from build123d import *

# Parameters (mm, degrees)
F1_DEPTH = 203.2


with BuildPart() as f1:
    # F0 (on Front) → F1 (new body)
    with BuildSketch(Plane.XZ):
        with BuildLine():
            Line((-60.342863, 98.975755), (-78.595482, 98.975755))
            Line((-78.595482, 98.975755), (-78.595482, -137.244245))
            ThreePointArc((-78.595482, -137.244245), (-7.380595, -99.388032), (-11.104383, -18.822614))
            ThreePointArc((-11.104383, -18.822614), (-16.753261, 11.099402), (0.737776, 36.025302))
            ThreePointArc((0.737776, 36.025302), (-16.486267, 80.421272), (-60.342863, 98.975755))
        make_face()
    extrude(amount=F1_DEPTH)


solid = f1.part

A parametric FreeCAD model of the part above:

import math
import FreeCAD as App
import Part
import Sketcher

V = App.Vector
Q = App.Units.Quantity

doc = App.newDocument("Part")
body = doc.addObject("PartDesign::Body", "Body")

sketch1 = body.newObject("Sketcher::SketchObject", "Sketch")
sketch1.AttachmentSupport = (doc.getObject("XZ_Plane"), [""])
sketch1.MapMode = "FlatFace"
sketch1.addGeometry([
    Part.LineSegment(V(-60, 99, 0), V(-79, 99, 0)),
    Part.LineSegment(V(-79, 99, 0), V(-79, -137, 0)),
    Part.ArcOfCircle(Part.Circle(V(-73, -62, 0), V(0, 0, 1), 75), math.radians(-94), math.radians(35)),
    Part.ArcOfCircle(Part.Circle(V(22, 3, 0), V(0, 0, 1), 39), math.radians(122), math.radians(214)),
    Part.ArcOfCircle(Part.Circle(V(-60, 38, 0), V(0, 0, 1), 61), math.radians(-2), math.radians(90)),
], False)
sketch1.addConstraint([
    Sketcher.Constraint("Coincident", 0, 2, 1, 1),
    Sketcher.Constraint("Coincident", 1, 2, 2, 1),
    Sketcher.Constraint("Coincident", 2, 2, 3, 2),
    Sketcher.Constraint("Coincident", 3, 1, 4, 1),
    Sketcher.Constraint("Tangent", 4, 2, 0, 1),
    Sketcher.Constraint("Horizontal", 0),
    Sketcher.Constraint("Vertical", 1),
    Sketcher.Constraint("DistanceY", 1, 2, 1, 1, Q("9.3 in")),
    Sketcher.Constraint("Radius", 2, 75.412118),
    Sketcher.Constraint("Radius", 4, 61.108409),
    Sketcher.Constraint("Radius", 3, 39.168334),
    Sketcher.Constraint("DistanceX", 0, 2, 0, 1, 18.252619),
    Sketcher.Constraint("DistanceY", -1, 1, 3, 1, 36.025302),
    Sketcher.Constraint("DistanceY", 2, 2, 3, 3, 21.6557),
    Sketcher.Constraint("DistanceX", 0, 2, 2, 2, 67.491099),
    Sketcher.Constraint("DistanceX", 2, 3, 3, 1, 73.636902),
    Sketcher.Constraint("DistanceX", -1, 1, 3, 3, 21.532852),
])
pad1 = body.newObject("PartDesign::Pad", "Pad")
pad1.Profile = sketch1
pad1.Length = Q("8 in")

doc.recompute()
